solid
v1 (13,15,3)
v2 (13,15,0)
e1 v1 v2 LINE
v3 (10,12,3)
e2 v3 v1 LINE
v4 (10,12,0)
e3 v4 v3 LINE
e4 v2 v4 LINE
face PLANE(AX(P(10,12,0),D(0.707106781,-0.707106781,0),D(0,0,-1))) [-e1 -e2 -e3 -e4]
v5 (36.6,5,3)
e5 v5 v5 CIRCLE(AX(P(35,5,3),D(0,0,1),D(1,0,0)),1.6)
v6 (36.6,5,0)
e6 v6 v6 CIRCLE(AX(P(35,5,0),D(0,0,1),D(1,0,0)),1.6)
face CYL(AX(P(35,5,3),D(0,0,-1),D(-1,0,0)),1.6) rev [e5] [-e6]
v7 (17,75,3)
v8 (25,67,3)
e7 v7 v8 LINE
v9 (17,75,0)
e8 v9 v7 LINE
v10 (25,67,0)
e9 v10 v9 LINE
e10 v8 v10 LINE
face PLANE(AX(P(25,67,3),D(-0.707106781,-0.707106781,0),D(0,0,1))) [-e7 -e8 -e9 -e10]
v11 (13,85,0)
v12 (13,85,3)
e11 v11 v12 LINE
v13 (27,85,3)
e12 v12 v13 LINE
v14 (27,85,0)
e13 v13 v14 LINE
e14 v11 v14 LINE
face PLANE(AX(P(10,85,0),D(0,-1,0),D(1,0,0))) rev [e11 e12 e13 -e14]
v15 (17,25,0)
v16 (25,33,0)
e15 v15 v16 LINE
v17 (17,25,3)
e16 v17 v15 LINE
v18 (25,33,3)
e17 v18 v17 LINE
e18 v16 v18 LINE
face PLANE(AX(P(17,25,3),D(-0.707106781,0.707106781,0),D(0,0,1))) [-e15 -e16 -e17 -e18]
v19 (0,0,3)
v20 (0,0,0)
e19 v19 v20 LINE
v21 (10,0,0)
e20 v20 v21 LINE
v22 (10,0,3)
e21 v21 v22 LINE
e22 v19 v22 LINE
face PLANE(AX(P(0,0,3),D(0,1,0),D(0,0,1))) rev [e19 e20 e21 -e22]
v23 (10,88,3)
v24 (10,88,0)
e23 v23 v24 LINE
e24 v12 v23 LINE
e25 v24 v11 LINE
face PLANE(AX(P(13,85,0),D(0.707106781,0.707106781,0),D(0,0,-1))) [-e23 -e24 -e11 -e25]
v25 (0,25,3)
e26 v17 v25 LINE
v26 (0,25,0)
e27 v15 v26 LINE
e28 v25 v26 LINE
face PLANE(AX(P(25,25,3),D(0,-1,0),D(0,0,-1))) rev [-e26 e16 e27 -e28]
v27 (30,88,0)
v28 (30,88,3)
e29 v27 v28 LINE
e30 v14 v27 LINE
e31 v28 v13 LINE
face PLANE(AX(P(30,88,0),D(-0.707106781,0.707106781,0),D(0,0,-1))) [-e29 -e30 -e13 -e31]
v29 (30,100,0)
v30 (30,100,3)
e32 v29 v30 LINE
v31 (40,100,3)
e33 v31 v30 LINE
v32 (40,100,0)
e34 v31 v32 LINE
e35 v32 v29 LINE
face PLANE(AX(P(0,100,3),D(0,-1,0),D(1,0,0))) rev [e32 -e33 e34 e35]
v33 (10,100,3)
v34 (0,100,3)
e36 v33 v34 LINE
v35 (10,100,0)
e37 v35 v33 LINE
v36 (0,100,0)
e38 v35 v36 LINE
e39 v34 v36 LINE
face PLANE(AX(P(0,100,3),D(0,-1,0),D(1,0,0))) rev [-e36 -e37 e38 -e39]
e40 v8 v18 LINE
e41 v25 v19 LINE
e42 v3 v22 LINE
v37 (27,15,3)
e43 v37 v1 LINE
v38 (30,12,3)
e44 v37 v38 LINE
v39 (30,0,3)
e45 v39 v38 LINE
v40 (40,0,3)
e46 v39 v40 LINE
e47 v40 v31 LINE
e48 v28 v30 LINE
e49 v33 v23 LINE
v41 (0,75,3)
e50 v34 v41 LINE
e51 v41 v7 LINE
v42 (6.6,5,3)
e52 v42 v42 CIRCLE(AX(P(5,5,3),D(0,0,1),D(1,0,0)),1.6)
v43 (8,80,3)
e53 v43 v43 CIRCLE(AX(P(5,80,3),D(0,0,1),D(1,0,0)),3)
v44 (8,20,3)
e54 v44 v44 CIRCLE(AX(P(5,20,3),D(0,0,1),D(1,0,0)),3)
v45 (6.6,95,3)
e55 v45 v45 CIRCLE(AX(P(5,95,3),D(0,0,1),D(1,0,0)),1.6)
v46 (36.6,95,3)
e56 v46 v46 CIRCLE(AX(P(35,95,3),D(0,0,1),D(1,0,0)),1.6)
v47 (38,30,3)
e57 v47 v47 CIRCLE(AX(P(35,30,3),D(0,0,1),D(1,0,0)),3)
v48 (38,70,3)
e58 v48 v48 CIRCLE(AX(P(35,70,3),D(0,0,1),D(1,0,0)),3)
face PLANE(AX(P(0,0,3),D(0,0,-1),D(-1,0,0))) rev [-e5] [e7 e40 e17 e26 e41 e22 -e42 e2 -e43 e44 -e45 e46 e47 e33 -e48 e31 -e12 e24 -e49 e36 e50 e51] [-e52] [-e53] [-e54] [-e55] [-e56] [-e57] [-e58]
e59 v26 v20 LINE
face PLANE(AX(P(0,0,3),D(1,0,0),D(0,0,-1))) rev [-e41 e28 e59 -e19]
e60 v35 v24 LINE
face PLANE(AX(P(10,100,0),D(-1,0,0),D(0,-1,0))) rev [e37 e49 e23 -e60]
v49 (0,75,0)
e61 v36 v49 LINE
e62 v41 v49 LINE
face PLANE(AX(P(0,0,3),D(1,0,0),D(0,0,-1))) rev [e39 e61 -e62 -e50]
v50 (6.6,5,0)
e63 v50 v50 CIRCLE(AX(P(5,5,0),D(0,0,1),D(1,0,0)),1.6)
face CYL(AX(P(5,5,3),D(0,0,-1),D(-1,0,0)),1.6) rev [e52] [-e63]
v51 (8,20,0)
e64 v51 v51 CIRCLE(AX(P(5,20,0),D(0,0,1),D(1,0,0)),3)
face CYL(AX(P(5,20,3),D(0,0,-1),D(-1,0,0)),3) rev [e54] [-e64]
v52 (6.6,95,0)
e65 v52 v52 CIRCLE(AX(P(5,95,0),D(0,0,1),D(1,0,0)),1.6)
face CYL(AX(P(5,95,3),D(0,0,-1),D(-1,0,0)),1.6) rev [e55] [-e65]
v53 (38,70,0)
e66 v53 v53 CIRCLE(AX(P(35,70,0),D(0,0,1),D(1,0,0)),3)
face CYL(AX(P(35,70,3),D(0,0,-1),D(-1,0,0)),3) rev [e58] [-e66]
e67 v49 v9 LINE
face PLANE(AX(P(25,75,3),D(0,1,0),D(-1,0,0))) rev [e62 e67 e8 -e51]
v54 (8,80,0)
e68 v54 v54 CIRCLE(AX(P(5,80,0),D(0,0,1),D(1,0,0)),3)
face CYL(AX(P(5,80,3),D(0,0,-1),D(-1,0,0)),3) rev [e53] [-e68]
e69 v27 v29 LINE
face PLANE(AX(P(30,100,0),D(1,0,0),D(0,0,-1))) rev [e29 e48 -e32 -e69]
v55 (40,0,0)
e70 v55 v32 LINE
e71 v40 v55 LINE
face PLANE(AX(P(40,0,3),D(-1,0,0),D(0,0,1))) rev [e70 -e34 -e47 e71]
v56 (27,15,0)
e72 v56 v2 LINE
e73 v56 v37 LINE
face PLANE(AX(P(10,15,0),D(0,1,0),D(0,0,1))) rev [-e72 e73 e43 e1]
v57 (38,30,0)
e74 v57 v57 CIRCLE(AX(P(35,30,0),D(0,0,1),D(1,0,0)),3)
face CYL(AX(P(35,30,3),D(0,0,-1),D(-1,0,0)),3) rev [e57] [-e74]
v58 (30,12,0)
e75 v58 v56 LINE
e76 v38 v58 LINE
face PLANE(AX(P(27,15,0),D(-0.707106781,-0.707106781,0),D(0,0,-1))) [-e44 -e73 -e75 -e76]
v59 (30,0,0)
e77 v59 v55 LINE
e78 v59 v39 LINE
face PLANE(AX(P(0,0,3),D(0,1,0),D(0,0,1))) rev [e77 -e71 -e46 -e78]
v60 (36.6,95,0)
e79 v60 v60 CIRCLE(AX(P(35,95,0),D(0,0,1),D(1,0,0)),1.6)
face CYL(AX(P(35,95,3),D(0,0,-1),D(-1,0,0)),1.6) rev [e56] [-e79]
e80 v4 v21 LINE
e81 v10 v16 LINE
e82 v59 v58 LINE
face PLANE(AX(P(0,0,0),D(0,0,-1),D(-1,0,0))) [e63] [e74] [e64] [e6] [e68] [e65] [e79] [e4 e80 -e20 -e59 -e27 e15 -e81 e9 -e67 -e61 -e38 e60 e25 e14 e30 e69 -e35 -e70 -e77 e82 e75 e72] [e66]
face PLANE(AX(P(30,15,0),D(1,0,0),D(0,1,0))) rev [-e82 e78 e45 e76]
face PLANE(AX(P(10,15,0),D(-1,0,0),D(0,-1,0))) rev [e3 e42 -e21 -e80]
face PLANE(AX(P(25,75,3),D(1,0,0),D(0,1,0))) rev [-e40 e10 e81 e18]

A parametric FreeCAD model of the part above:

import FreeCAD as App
import Part
import Sketcher
from FreeCAD import Vector


def edges_at(feature, points):
    """Names of the edges that pass closest to the given points."""
    edges = feature.Shape.Edges
    near = lambda p: min(range(len(edges)), key=lambda i: edges[i].distToShape(Part.Vertex(*p))[0])
    return sorted({f"Edge{near(p) + 1}" for p in points})

doc = App.newDocument("Part")
body = doc.addObject("PartDesign::Body", "Body")

# Sketch on XY plane
sketch1 = body.newObject("Sketcher::SketchObject", "Sketch")
sketch1.AttachmentSupport = (doc.getObject("XY_Plane"), [""])
sketch1.MapMode = "FlatFace"
sketch1.addGeometry([
    Part.LineSegment(Vector(0, 100, 0), Vector(0, 0, 0)),  # 0
    Part.LineSegment(Vector(0, 0, 0), Vector(40, 0, 0)),  # 1
    Part.LineSegment(Vector(40, 0, 0), Vector(40, 100, 0)),  # 2
    Part.LineSegment(Vector(40, 100, 0), Vector(0, 100, 0)),  # 3
    Part.Circle(Vector(5, 5, 0), Vector(0, 0, 1), 1.6),  # 4
    Part.Circle(Vector(5, 20, 0), Vector(0, 0, 1), 3),  # 5
    Part.Circle(Vector(35, 5, 0), Vector(0, 0, 1), 1.6),  # 6
    Part.Circle(Vector(35, 30, 0), Vector(0, 0, 1), 3),  # 7
    Part.Circle(Vector(5, 80, 0), Vector(0, 0, 1), 3),  # 8
    Part.Circle(Vector(5, 95, 0), Vector(0, 0, 1), 1.6),  # 9
    Part.Circle(Vector(35, 70, 0), Vector(0, 0, 1), 3),  # 10
    Part.Circle(Vector(35, 95, 0), Vector(0, 0, 1), 1.6),  # 11
], False)
sketch1.addConstraint([
    Sketcher.Constraint("Coincident", 0, 2, 1, 1),
    Sketcher.Constraint("Coincident", 1, 2, 2, 1),
    Sketcher.Constraint("Coincident", 2, 2, 3, 1),
    Sketcher.Constraint("Coincident", 3, 2, 0, 1),
    Sketcher.Constraint("Vertical", 0),
    Sketcher.Constraint("Horizontal", 1),
    Sketcher.Constraint("Vertical", 2),
    Sketcher.Constraint("Horizontal", 3),
    Sketcher.Constraint("Coincident", 0, 2, -1, 1),
    Sketcher.Constraint("Equal", 4, 6),
    Sketcher.Constraint("Equal", 5, 7),
    Sketcher.Constraint("Equal", 7, 8),
    Sketcher.Constraint("Equal", 6, 9),
    Sketcher.Constraint("Equal", 8, 10),
    Sketcher.Constraint("Equal", 9, 11),
    Sketcher.Constraint("Horizontal", 4, 3, 6, 3),
    Sketcher.Constraint("Horizontal", 9, 3, 11, 3),
    Sketcher.Constraint("Vertical", 4, 3, 5, 3),
    Sketcher.Constraint("Vertical", 6, 3, 7, 3),
    Sketcher.Constraint("Vertical", 5, 3, 8, 3),
    Sketcher.Constraint("Vertical", 8, 3, 9, 3),
    Sketcher.Constraint("Vertical", 7, 3, 10, 3),
    Sketcher.Constraint("Vertical", 10, 3, 11, 3),
    Sketcher.Constraint("Diameter", 5, 6.0),
    Sketcher.Constraint("Diameter", 4, 3.2),
    Sketcher.Constraint("DistanceX", 1, 1, 1, 2, 40.0),
    Sketcher.Constraint("DistanceY", 0, 2, 0, 1, 100.0),
    Sketcher.Constraint("DistanceX", -1, 1, 4, 3, 5.0),
    Sketcher.Constraint("DistanceY", -1, 1, 4, 3, 5.0),
    Sketcher.Constraint("DistanceY", -1, 1, 5, 3, 20.0),
    Sketcher.Constraint("DistanceX", -1, 1, 6, 3, 35.0),
    Sketcher.Constraint("DistanceY", -1, 1, 7, 3, 30.0),
    Sketcher.Constraint("DistanceY", -1, 1, 8, 3, 80.0),
    Sketcher.Constraint("DistanceY", -1, 1, 9, 3, 95.0),
    Sketcher.Constraint("DistanceY", -1, 1, 10, 3, 70.0),
])
pad1 = body.newObject("PartDesign::Pad", "Pad")
pad1.Profile = sketch1
pad1.Length = 3

# Sketch on XY plane
sketch2 = body.newObject("Sketcher::SketchObject", "Sketch001")
sketch2.AttachmentSupport = (doc.getObject("XY_Plane"), [""])
sketch2.MapMode = "FlatFace"
sketch2.AttachmentOffset = App.Placement(Vector(0, 0, 3), App.Rotation())
sketch2.addGeometry([
    Part.LineSegment(Vector(10, 100, 0), Vector(10, 85, 0)),  # 0
    Part.LineSegment(Vector(10, 85, 0), Vector(30, 85, 0)),  # 1
    Part.LineSegment(Vector(30, 85, 0), Vector(30, 100, 0)),  # 2
    Part.LineSegment(Vector(30, 100, 0), Vector(10, 100, 0)),  # 3
    Part.LineSegment(Vector(10, 15, 0), Vector(10, 0, 0)),  # 4
    Part.LineSegment(Vector(10, 0, 0), Vector(30, 0, 0)),  # 5
    Part.LineSegment(Vector(30, 0, 0), Vector(30, 15, 0)),  # 6
    Part.LineSegment(Vector(30, 15, 0), Vector(10, 15, 0)),  # 7
], False)
sketch2.addConstraint([
    Sketcher.Constraint("Coincident", 0, 2, 1, 1),
    Sketcher.Constraint("Coincident", 1, 2, 2, 1),
    Sketcher.Constraint("Coincident", 2, 2, 3, 1),
    Sketcher.Constraint("Coincident", 3, 2, 0, 1),
    Sketcher.Constraint("Coincident", 4, 2, 5, 1),
    Sketcher.Constraint("Coincident", 5, 2, 6, 1),
    Sketcher.Constraint("Coincident", 6, 2, 7, 1),
    Sketcher.Constraint("Coincident", 7, 2, 4, 1),
    Sketcher.Constraint("Vertical", 0),
    Sketcher.Constraint("Horizontal", 1),
    Sketcher.Constraint("Vertical", 2),
    Sketcher.Constraint("Horizontal", 3),
    Sketcher.Constraint("Vertical", 4),
    Sketcher.Constraint("Horizontal", 5),
    Sketcher.Constraint("Vertical", 6),
    Sketcher.Constraint("Horizontal", 7),
    Sketcher.Constraint("PointOnObject", 4, 2, -1),
    Sketcher.Constraint("Vertical", 3, 2, 4, 2),
    Sketcher.Constraint("Vertical", 2, 2, 5, 2),
    Sketcher.Constraint("Equal", 2, 4),
    Sketcher.Constraint("DistanceX", 1, 1, 1, 2, 20.0),
    Sketcher.Constraint("DistanceY", 0, 2, 0, 1, 15.0),
    Sketcher.Constraint("DistanceX", -1, 1, 0, 2, 10.0),
    Sketcher.Constraint("DistanceY", -1, 1, 0, 2, 85.0),
])
pocket1 = body.newObject("PartDesign::Pocket", "Pocket")
pocket1.Profile = sketch2
pocket1.Type = "ThroughAll"
doc.recompute()

chamfer = body.newObject("PartDesign::Chamfer", "Chamfer")
chamfer.Base = (pocket1, edges_at(pocket1, [
    (10, 85, 1.5),
    (30, 85, 1.5),
    (10, 15, 1.5),
    (30, 15, 1.5),
]))
chamfer.Size = 3

# Sketch on XY plane
sketch3 = body.newObject("Sketcher::SketchObject", "Sketch002")
sketch3.AttachmentSupport = (doc.getObject("XY_Plane"), [""])
sketch3.MapMode = "FlatFace"
sketch3.addGeometry([
    Part.LineSegment(Vector(25, 75, 0), Vector(25, 25, 0)),
    Part.LineSegment(Vector(25, 25, 0), Vector(0, 25, 0)),
    Part.LineSegment(Vector(0, 25, 0), Vector(0, 75, 0)),
    Part.LineSegment(Vector(0, 75, 0), Vector(25, 75, 0)),
], False)
sketch3.addConstraint([
    Sketcher.Constraint("Coincident", 0, 2, 1, 1),
    Sketcher.Constraint("Coincident", 1, 2, 2, 1),
    Sketcher.Constraint("Coincident", 2, 2, 3, 1),
    Sketcher.Constraint("Coincident", 3, 2, 0, 1),
    Sketcher.Constraint("Vertical", 0),
    Sketcher.Constraint("Horizontal", 1),
    Sketcher.Constraint("Vertical", 2),
    Sketcher.Constraint("Horizontal", 3),
    Sketcher.Constraint("PointOnObject", 1, 2, -2),
    Sketcher.Constraint("DistanceX", 1, 2, 1, 1, 25.0),
    Sketcher.Constraint("DistanceY", 0, 2, 0, 1, 50.0),
    Sketcher.Constraint("DistanceY", -1, 1, 0, 2, 25.0),
])
pocket2 = body.newObject("PartDesign::Pocket", "Pocket001")
pocket2.Profile = sketch3
pocket2.Type = "ThroughAll"
pocket2.Reversed = True
doc.recompute()

chamfer2 = body.newObject("PartDesign::Chamfer", "Chamfer001")
chamfer2.Base = (pocket2, edges_at(pocket2, [(25, 25, 1.5), (25, 75, 1.5)]))
chamfer2.Size = 8

doc.recompute()
